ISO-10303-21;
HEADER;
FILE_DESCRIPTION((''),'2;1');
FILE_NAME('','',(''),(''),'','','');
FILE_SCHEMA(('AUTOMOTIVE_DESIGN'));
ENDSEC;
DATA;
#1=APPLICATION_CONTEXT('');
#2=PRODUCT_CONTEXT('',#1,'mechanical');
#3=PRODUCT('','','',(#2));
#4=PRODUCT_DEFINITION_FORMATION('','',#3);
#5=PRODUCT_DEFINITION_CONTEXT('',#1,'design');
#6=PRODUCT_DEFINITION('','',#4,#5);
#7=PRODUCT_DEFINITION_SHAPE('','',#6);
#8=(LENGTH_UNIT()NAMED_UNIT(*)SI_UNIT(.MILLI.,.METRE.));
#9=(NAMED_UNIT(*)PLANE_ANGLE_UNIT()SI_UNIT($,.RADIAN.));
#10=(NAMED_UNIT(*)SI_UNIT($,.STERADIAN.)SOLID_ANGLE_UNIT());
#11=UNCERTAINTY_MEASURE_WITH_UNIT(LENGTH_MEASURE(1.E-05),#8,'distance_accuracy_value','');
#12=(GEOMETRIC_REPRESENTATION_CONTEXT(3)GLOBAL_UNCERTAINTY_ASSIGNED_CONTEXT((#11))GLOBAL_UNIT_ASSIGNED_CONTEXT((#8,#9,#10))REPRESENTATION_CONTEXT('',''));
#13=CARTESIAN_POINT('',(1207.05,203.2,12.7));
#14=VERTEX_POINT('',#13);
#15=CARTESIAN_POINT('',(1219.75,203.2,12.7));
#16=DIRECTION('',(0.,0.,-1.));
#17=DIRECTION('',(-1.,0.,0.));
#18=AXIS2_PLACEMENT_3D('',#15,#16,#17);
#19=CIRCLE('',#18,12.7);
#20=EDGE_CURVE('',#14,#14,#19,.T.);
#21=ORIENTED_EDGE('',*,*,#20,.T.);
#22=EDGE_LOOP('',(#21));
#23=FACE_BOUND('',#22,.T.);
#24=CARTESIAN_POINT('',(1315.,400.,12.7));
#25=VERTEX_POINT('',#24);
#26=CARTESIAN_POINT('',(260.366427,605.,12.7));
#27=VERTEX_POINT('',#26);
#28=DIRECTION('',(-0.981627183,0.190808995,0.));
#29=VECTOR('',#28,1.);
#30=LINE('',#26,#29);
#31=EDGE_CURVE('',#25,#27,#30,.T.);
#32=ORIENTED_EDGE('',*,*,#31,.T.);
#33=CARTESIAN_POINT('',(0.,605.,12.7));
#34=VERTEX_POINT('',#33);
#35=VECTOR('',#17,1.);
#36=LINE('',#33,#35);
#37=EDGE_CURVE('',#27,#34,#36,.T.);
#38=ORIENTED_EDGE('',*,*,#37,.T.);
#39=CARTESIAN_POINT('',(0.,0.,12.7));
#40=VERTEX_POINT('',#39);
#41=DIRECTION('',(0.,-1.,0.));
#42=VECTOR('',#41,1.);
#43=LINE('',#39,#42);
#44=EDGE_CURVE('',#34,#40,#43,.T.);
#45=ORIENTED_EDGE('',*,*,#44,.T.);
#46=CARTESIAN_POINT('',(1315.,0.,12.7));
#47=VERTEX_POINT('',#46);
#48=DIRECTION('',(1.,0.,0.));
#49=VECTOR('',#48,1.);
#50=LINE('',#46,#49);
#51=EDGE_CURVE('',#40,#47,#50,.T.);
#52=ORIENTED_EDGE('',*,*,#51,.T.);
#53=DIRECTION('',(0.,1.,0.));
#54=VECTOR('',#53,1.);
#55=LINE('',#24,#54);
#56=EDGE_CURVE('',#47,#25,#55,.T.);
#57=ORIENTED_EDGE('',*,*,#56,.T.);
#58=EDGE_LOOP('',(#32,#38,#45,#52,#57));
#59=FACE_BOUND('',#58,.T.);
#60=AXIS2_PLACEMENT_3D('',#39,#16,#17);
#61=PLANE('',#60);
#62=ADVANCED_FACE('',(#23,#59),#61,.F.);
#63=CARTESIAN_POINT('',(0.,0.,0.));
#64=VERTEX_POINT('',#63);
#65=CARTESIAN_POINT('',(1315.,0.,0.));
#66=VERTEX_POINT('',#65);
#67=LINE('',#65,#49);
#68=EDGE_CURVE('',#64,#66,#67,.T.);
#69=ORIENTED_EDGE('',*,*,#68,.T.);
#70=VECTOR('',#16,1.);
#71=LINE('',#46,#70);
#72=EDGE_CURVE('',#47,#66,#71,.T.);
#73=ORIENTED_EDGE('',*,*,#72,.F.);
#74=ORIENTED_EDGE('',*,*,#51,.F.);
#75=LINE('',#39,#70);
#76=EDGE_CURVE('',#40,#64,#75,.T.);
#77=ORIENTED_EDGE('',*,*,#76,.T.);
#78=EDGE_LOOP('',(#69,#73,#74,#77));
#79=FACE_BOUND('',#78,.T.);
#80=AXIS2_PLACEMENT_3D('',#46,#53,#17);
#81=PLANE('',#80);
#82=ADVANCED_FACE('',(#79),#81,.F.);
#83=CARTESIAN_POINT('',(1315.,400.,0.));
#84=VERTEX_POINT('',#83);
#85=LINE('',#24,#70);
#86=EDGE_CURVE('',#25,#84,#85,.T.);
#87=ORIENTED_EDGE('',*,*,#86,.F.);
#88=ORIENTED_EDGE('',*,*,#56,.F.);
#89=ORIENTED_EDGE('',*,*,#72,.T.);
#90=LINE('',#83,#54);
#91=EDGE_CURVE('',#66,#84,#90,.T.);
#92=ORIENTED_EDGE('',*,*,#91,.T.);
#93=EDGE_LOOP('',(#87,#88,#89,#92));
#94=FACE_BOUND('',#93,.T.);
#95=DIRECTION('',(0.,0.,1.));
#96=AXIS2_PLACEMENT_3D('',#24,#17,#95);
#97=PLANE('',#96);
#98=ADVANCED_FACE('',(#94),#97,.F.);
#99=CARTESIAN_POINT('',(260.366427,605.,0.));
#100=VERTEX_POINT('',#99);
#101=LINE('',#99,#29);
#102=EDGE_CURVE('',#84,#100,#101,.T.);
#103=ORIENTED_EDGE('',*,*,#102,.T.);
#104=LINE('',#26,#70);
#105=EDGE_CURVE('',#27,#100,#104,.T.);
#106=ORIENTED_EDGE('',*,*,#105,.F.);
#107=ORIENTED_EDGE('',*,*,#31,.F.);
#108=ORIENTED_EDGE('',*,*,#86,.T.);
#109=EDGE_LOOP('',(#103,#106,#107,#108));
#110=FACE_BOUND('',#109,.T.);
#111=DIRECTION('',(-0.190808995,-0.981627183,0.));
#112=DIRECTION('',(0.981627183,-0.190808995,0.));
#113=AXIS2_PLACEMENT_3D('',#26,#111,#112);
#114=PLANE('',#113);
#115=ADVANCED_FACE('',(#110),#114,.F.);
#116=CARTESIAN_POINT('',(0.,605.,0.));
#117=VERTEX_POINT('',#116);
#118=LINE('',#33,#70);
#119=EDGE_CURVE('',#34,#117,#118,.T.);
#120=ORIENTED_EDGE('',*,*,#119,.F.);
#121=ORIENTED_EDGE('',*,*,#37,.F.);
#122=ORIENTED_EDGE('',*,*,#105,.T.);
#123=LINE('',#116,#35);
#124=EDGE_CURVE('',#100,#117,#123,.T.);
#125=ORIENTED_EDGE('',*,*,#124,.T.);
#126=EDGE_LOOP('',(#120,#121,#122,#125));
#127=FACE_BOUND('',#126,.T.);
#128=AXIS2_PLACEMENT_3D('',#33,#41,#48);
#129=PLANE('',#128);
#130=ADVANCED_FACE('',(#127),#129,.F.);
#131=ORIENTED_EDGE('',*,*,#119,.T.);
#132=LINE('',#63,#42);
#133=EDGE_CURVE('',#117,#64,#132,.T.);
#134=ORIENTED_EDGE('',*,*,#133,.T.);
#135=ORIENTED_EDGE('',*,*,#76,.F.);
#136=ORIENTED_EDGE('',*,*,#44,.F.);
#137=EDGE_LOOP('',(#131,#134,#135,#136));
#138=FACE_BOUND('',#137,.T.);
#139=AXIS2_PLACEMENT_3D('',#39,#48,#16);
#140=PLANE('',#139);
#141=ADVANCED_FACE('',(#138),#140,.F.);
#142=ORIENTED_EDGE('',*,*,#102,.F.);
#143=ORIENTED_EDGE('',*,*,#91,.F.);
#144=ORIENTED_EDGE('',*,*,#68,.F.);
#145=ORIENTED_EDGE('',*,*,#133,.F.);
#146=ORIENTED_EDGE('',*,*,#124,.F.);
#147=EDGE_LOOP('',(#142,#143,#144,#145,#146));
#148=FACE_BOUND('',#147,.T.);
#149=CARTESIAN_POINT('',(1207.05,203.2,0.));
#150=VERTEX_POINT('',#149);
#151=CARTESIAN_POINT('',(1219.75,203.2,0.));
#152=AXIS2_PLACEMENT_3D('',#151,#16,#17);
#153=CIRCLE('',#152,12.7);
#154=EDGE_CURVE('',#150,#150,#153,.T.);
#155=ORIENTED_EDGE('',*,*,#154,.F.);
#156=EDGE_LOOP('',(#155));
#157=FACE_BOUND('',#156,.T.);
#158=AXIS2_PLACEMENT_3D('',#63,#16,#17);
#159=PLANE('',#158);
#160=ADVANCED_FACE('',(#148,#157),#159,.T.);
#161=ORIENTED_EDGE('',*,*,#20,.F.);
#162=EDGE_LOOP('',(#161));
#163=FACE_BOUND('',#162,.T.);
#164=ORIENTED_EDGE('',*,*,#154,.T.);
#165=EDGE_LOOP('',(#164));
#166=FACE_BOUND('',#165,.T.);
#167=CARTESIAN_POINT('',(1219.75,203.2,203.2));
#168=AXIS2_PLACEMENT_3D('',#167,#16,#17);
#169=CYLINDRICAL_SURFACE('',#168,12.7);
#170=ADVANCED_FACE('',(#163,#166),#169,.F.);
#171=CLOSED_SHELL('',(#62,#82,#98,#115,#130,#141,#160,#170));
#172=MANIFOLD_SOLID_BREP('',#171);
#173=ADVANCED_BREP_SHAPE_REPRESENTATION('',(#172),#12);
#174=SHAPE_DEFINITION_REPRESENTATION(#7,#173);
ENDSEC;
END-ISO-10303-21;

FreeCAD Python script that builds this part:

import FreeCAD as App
import Part
import Sketcher

V = App.Vector
Q = App.Units.Quantity


def add_polygon(sketch, points):
    """Adds a closed chain of lines whose ends are joined by coincident constraints."""
    first, n = sketch.GeometryCount, len(points)
    for a, b in zip(points, points[1:] + points[:1]):
        sketch.addGeometry(Part.LineSegment(App.Vector(*a, 0), App.Vector(*b, 0)), False)
    for i in range(n):
        sketch.addConstraint(Sketcher.Constraint("Coincident", first + i, 2, first + (i + 1) % n, 1))

doc = App.newDocument("Part")
body = doc.addObject("PartDesign::Body", "Body")

# Sketch on XY plane
sketch1 = body.newObject("Sketcher::SketchObject", "Sketch")
sketch1.AttachmentSupport = (doc.getObject("XY_Plane"), [""])
sketch1.MapMode = "FlatFace"
add_polygon(sketch1, [(0, 605), (0, 0), (1315, 0), (1315, 400), (260.366427, 605)])  # lines 0-4
sketch1.addConstraint([
    Sketcher.Constraint("Vertical", 0),
    Sketcher.Constraint("Horizontal", 1),
    Sketcher.Constraint("Vertical", 2),
    Sketcher.Constraint("Horizontal", 4),
    Sketcher.Constraint("Coincident", 0, 2, -1, 1),
    Sketcher.Constraint("DistanceX", 1, 1, 1, 2, 1315.0),
    Sketcher.Constraint("DistanceY", 0, 2, 0, 1, 605.0),
    Sketcher.Constraint("DistanceY", 2, 1, 2, 2, 400.0),
    Sketcher.Constraint("Angle", 3, Q("169 deg")),
])
pad1 = body.newObject("PartDesign::Pad", "Pad")
pad1.Profile = sketch1
pad1.Length = 12.7

# Sketch on XY plane
sketch2 = body.newObject("Sketcher::SketchObject", "Sketch001")
sketch2.AttachmentSupport = (doc.getObject("XY_Plane"), [""])
sketch2.MapMode = "FlatFace"
sketch2.addGeometry(Part.Circle(V(1219.75, 203.2, 0), V(0, 0, 1), 12.7), False)
sketch2.addConstraint([
    Sketcher.Constraint("Diameter", 0, 25.4),
    Sketcher.Constraint("DistanceY", -1, 1, 0, 3, 203.2),
    Sketcher.Constraint("DistanceX", -1, 1, 0, 3, 1219.75),
])
pocket1 = body.newObject("PartDesign::Pocket", "Pocket")
pocket1.Profile = sketch2
pocket1.Length = 203.2
pocket1.Reversed = True

doc.recompute()
